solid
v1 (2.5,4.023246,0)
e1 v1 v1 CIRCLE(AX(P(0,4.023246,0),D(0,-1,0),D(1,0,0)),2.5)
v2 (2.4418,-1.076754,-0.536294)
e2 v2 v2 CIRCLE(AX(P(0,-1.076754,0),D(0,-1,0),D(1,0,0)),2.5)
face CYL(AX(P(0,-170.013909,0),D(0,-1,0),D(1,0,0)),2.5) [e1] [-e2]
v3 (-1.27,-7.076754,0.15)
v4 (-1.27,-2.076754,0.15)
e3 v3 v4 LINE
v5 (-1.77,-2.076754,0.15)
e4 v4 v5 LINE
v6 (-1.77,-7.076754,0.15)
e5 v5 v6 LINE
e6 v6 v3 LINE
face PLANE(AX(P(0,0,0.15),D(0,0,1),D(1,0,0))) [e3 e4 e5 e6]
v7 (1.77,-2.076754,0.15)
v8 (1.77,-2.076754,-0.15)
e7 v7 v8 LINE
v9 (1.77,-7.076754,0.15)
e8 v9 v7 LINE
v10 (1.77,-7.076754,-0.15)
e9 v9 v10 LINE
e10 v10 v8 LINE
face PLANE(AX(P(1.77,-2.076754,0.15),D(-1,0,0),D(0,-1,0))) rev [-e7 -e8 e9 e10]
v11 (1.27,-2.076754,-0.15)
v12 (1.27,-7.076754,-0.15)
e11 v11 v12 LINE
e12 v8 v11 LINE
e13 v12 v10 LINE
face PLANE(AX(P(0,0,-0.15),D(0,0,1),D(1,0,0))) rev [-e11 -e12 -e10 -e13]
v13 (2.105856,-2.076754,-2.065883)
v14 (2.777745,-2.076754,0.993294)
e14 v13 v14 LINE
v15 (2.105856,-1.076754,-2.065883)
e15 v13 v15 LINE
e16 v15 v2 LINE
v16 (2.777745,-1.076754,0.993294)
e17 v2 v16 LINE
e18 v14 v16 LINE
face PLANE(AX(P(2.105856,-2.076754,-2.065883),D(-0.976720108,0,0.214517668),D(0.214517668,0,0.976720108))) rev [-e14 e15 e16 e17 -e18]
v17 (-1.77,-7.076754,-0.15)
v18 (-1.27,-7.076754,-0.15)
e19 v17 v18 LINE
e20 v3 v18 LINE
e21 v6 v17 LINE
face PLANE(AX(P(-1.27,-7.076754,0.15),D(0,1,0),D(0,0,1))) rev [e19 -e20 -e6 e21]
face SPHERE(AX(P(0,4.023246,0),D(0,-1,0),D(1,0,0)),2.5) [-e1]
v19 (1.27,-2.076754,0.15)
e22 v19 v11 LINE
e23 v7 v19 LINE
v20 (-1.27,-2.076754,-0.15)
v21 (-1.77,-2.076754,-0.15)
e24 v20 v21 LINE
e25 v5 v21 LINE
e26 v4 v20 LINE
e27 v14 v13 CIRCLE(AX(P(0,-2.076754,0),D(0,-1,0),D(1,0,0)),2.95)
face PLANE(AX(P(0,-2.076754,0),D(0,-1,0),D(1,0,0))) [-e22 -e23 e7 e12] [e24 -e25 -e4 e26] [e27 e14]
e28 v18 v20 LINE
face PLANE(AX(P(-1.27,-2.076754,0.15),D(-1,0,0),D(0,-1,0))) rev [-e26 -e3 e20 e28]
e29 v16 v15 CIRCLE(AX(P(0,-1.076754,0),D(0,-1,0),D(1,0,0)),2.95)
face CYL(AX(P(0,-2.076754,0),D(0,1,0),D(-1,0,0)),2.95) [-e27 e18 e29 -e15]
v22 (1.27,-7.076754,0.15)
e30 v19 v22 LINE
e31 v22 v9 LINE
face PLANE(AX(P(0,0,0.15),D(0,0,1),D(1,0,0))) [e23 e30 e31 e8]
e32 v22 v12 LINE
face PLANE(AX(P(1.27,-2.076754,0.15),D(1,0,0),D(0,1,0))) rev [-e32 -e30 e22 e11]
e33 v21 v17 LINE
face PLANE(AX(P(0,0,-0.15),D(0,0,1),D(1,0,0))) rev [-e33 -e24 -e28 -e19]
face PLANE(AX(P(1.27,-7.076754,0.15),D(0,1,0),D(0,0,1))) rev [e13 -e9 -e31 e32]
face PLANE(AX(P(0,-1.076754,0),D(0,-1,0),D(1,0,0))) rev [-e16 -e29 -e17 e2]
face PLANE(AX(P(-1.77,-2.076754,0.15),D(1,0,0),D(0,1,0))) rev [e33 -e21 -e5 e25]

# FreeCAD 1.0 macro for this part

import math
import FreeCAD as App
import Part
import Sketcher
from FreeCAD import Vector
Q = App.Units.Quantity

doc = App.newDocument("Part")
body = doc.addObject("PartDesign::Body", "Body")

# Sketch on XY plane
sketch1 = body.newObject("Sketcher::SketchObject", "Sketch")
sketch1.AttachmentSupport = (doc.getObject("XY_Plane"), [""])
sketch1.MapMode = "FlatFace"
sketch1.addGeometry([
    Part.LineSegment(Vector(2.5, -1.1, 0), Vector(2.5, 4, 0)),
    Part.ArcOfCircle(Part.Circle(Vector(0, 4, 0), Vector(0, 0, 1), 2.5), math.radians(0), math.radians(90)),
    Part.LineSegment(Vector(0, 6.5, 0), Vector(0, -1.1, 0)),
    Part.LineSegment(Vector(0, -1.1, 0), Vector(2.5, -1.1, 0)),
], False)
sketch1.addConstraint([
    Sketcher.Constraint("Tangent", 0, 2, 1, 1),
    Sketcher.Constraint("Coincident", 1, 2, 2, 1),
    Sketcher.Constraint("Coincident", 2, 2, 3, 1),
    Sketcher.Constraint("Coincident", 3, 2, 0, 1),
    Sketcher.Constraint("Vertical", 0),
    Sketcher.Constraint("Vertical", 2),
    Sketcher.Constraint("Horizontal", 3),
    Sketcher.Constraint("PointOnObject", 1, 3, -2),
    Sketcher.Constraint("PointOnObject", 1, 2, -2),
    Sketcher.Constraint("Radius", 1, Q("2.5 mm")),
    Sketcher.Constraint("DistanceY", 0, 1, 0, 2, Q("5.1 mm")),
    Sketcher.Constraint("DistanceY", -1, 1, 1, 3, Q("4.023246 mm")),
])
revolution = body.newObject("PartDesign::Revolution", "Revolution")
revolution.Profile = sketch1
revolution.ReferenceAxis = (sketch1, ["V_Axis"])
revolution.Angle = 360

# Sketch on XZ plane
sketch2 = body.newObject("Sketcher::SketchObject", "Sketch001")
sketch2.AttachmentSupport = (doc.getObject("XZ_Plane"), [""])
sketch2.MapMode = "FlatFace"
sketch2.AttachmentOffset = App.Placement(Vector(0, 0, 1.076754), App.Rotation())
sketch2.addGeometry([
    Part.LineSegment(Vector(2.1, -2.1, 0), Vector(2.8, 1, 0)),
    Part.ArcOfCircle(Part.Circle(Vector(0, 0, 0), Vector(0, 0, 1), 3), math.radians(20), math.radians(316)),
], False)
sketch2.addConstraint([
    Sketcher.Constraint("Coincident", 0, 1, 1, 2),
    Sketcher.Constraint("Coincident", 1, 1, 0, 2),
    Sketcher.Constraint("Coincident", 1, 3, -1, 1),
    Sketcher.Constraint("Radius", 1, Q("2.95 mm")),
    Sketcher.Constraint("Distance", 0, Q("3.132092 mm")),
    Sketcher.Constraint("DistanceX", 0, 1, 1, 1, Q("0.671889 mm")),
])
pad1 = body.newObject("PartDesign::Pad", "Pad")
pad1.Profile = sketch2
pad1.Length = 1

# Sketch on XY plane
sketch3 = body.newObject("Sketcher::SketchObject", "Sketch002")
sketch3.AttachmentSupport = (doc.getObject("XY_Plane"), [""])
sketch3.MapMode = "FlatFace"
sketch3.addGeometry([
    Part.LineSegment(Vector(1.3, -2.1, 0), Vector(1.3, -7.1, 0)),  # 0
    Part.LineSegment(Vector(1.3, -7.1, 0), Vector(1.8, -7.1, 0)),  # 1
    Part.LineSegment(Vector(1.8, -7.1, 0), Vector(1.8, -2.1, 0)),  # 2
    Part.LineSegment(Vector(1.8, -2.1, 0), Vector(1.3, -2.1, 0)),  # 3
    Part.LineSegment(Vector(-1.8, -2.1, 0), Vector(-1.8, -7.1, 0)),  # 4
    Part.LineSegment(Vector(-1.8, -7.1, 0), Vector(-1.3, -7.1, 0)),  # 5
    Part.LineSegment(Vector(-1.3, -7.1, 0), Vector(-1.3, -2.1, 0)),  # 6
    Part.LineSegment(Vector(-1.3, -2.1, 0), Vector(-1.8, -2.1, 0)),  # 7
], False)
sketch3.addConstraint([
    Sketcher.Constraint("Coincident", 0, 2, 1, 1),
    Sketcher.Constraint("Coincident", 1, 2, 2, 1),
    Sketcher.Constraint("Coincident", 2, 2, 3, 1),
    Sketcher.Constraint("Coincident", 3, 2, 0, 1),
    Sketcher.Constraint("Coincident", 4, 2, 5, 1),
    Sketcher.Constraint("Coincident", 5, 2, 6, 1),
    Sketcher.Constraint("Coincident", 6, 2, 7, 1),
    Sketcher.Constraint("Coincident", 7, 2, 4, 1),
    Sketcher.Constraint("Vertical", 0),
    Sketcher.Constraint("Horizontal", 1),
    Sketcher.Constraint("Vertical", 2),
    Sketcher.Constraint("Horizontal", 3),
    Sketcher.Constraint("Vertical", 4),
    Sketcher.Constraint("Horizontal", 5),
    Sketcher.Constraint("Vertical", 6),
    Sketcher.Constraint("Horizontal", 7),
    Sketcher.Constraint("Symmetric", 1, 2, 4, 2, -2),
    Sketcher.Constraint("Symmetric", 3, 2, 6, 2, -2),
    Sketcher.Constraint("DistanceY", 0, 2, 0, 1, Q("5 mm")),
    Sketcher.Constraint("DistanceX", 1, 1, 1, 2, Q("0.5 mm")),
    Sketcher.Constraint("DistanceX", -1, 1, 0, 2, Q("1.27 mm")),
    Sketcher.Constraint("DistanceY", 0, 2, -1, 1, Q("7.076754 mm")),
])
pad2 = body.newObject("PartDesign::Pad", "Pad001")
pad2.Profile = sketch3
pad2.Length = 0.3
pad2.Midplane = True

doc.recompute()
